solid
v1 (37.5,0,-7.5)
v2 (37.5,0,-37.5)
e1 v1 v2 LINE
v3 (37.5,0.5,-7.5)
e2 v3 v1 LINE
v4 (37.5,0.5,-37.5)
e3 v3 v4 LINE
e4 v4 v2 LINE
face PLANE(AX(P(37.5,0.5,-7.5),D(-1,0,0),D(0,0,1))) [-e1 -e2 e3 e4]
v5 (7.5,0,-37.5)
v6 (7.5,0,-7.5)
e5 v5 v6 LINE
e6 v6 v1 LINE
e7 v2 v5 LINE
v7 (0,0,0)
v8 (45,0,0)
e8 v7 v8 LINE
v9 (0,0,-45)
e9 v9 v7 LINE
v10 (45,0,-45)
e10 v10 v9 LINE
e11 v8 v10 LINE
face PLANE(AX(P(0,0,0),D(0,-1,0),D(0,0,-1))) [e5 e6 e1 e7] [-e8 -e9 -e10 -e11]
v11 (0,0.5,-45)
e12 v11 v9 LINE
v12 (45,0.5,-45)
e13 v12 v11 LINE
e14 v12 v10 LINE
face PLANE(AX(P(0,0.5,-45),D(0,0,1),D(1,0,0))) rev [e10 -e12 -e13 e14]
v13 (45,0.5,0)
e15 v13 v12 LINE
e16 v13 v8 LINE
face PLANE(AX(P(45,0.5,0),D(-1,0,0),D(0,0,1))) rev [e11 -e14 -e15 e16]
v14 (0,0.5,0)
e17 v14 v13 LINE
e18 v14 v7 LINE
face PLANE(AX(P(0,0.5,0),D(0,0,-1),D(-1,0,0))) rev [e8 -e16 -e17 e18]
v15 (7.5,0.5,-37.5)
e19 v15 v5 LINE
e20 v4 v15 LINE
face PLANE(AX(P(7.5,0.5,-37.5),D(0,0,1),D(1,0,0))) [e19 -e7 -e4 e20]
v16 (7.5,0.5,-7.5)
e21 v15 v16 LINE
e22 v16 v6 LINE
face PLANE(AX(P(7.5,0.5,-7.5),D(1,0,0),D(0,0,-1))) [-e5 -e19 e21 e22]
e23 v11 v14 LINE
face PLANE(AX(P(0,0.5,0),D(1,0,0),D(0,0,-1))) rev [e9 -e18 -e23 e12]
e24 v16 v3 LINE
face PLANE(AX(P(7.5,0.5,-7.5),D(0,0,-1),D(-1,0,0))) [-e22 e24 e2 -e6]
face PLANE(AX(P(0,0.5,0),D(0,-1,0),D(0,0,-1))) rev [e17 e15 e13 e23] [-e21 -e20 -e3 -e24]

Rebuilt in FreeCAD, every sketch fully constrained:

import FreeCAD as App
import Part
import Sketcher

V = App.Vector
Q = App.Units.Quantity


def add_polygon(sketch, points):
    """Adds a closed chain of lines whose ends are joined by coincident constraints."""
    first, n = sketch.GeometryCount, len(points)
    for a, b in zip(points, points[1:] + points[:1]):
        sketch.addGeometry(Part.LineSegment(App.Vector(*a, 0), App.Vector(*b, 0)), False)
    for i in range(n):
        sketch.addConstraint(Sketcher.Constraint("Coincident", first + i, 2, first + (i + 1) % n, 1))

doc = App.newDocument("Part")
body = doc.addObject("PartDesign::Body", "Body")

sketch1 = body.newObject("Sketcher::SketchObject", "Sketch")
sketch1.AttachmentSupport = (doc.getObject("XZ_Plane"), [""])
sketch1.MapMode = "FlatFace"
add_polygon(sketch1, [(0, -45), (0, 0), (45, 0), (45, -45)])
add_polygon(sketch1, [(38, -8), (8, -8), (8, -38), (38, -38)])
sketch1.addConstraint([
    Sketcher.Constraint("Vertical", 0),
    Sketcher.Constraint("Horizontal", 1),
    Sketcher.Constraint("Vertical", 2),
    Sketcher.Constraint("Horizontal", 3),
    Sketcher.Constraint("Horizontal", 4),
    Sketcher.Constraint("Vertical", 5),
    Sketcher.Constraint("Horizontal", 6),
    Sketcher.Constraint("Vertical", 7),
    Sketcher.Constraint("Coincident", 0, 2, -1, 1),
    Sketcher.Constraint("Equal", 3, 0),
    Sketcher.Constraint("Equal", 6, 5),
    Sketcher.Constraint("DistanceX", 1, 1, 1, 2, Q("45 mm")),
    Sketcher.Constraint("DistanceX", 4, 2, 4, 1, Q("30 mm")),
    Sketcher.Constraint("DistanceX", -1, 1, 4, 2, Q("7.5 mm")),
    Sketcher.Constraint("DistanceY", 4, 2, -1, 1, Q("7.5 mm")),
])
pad1 = body.newObject("PartDesign::Pad", "Pad")
pad1.Profile = sketch1
pad1.Length = 0.5
pad1.Reversed = True

doc.recompute()
